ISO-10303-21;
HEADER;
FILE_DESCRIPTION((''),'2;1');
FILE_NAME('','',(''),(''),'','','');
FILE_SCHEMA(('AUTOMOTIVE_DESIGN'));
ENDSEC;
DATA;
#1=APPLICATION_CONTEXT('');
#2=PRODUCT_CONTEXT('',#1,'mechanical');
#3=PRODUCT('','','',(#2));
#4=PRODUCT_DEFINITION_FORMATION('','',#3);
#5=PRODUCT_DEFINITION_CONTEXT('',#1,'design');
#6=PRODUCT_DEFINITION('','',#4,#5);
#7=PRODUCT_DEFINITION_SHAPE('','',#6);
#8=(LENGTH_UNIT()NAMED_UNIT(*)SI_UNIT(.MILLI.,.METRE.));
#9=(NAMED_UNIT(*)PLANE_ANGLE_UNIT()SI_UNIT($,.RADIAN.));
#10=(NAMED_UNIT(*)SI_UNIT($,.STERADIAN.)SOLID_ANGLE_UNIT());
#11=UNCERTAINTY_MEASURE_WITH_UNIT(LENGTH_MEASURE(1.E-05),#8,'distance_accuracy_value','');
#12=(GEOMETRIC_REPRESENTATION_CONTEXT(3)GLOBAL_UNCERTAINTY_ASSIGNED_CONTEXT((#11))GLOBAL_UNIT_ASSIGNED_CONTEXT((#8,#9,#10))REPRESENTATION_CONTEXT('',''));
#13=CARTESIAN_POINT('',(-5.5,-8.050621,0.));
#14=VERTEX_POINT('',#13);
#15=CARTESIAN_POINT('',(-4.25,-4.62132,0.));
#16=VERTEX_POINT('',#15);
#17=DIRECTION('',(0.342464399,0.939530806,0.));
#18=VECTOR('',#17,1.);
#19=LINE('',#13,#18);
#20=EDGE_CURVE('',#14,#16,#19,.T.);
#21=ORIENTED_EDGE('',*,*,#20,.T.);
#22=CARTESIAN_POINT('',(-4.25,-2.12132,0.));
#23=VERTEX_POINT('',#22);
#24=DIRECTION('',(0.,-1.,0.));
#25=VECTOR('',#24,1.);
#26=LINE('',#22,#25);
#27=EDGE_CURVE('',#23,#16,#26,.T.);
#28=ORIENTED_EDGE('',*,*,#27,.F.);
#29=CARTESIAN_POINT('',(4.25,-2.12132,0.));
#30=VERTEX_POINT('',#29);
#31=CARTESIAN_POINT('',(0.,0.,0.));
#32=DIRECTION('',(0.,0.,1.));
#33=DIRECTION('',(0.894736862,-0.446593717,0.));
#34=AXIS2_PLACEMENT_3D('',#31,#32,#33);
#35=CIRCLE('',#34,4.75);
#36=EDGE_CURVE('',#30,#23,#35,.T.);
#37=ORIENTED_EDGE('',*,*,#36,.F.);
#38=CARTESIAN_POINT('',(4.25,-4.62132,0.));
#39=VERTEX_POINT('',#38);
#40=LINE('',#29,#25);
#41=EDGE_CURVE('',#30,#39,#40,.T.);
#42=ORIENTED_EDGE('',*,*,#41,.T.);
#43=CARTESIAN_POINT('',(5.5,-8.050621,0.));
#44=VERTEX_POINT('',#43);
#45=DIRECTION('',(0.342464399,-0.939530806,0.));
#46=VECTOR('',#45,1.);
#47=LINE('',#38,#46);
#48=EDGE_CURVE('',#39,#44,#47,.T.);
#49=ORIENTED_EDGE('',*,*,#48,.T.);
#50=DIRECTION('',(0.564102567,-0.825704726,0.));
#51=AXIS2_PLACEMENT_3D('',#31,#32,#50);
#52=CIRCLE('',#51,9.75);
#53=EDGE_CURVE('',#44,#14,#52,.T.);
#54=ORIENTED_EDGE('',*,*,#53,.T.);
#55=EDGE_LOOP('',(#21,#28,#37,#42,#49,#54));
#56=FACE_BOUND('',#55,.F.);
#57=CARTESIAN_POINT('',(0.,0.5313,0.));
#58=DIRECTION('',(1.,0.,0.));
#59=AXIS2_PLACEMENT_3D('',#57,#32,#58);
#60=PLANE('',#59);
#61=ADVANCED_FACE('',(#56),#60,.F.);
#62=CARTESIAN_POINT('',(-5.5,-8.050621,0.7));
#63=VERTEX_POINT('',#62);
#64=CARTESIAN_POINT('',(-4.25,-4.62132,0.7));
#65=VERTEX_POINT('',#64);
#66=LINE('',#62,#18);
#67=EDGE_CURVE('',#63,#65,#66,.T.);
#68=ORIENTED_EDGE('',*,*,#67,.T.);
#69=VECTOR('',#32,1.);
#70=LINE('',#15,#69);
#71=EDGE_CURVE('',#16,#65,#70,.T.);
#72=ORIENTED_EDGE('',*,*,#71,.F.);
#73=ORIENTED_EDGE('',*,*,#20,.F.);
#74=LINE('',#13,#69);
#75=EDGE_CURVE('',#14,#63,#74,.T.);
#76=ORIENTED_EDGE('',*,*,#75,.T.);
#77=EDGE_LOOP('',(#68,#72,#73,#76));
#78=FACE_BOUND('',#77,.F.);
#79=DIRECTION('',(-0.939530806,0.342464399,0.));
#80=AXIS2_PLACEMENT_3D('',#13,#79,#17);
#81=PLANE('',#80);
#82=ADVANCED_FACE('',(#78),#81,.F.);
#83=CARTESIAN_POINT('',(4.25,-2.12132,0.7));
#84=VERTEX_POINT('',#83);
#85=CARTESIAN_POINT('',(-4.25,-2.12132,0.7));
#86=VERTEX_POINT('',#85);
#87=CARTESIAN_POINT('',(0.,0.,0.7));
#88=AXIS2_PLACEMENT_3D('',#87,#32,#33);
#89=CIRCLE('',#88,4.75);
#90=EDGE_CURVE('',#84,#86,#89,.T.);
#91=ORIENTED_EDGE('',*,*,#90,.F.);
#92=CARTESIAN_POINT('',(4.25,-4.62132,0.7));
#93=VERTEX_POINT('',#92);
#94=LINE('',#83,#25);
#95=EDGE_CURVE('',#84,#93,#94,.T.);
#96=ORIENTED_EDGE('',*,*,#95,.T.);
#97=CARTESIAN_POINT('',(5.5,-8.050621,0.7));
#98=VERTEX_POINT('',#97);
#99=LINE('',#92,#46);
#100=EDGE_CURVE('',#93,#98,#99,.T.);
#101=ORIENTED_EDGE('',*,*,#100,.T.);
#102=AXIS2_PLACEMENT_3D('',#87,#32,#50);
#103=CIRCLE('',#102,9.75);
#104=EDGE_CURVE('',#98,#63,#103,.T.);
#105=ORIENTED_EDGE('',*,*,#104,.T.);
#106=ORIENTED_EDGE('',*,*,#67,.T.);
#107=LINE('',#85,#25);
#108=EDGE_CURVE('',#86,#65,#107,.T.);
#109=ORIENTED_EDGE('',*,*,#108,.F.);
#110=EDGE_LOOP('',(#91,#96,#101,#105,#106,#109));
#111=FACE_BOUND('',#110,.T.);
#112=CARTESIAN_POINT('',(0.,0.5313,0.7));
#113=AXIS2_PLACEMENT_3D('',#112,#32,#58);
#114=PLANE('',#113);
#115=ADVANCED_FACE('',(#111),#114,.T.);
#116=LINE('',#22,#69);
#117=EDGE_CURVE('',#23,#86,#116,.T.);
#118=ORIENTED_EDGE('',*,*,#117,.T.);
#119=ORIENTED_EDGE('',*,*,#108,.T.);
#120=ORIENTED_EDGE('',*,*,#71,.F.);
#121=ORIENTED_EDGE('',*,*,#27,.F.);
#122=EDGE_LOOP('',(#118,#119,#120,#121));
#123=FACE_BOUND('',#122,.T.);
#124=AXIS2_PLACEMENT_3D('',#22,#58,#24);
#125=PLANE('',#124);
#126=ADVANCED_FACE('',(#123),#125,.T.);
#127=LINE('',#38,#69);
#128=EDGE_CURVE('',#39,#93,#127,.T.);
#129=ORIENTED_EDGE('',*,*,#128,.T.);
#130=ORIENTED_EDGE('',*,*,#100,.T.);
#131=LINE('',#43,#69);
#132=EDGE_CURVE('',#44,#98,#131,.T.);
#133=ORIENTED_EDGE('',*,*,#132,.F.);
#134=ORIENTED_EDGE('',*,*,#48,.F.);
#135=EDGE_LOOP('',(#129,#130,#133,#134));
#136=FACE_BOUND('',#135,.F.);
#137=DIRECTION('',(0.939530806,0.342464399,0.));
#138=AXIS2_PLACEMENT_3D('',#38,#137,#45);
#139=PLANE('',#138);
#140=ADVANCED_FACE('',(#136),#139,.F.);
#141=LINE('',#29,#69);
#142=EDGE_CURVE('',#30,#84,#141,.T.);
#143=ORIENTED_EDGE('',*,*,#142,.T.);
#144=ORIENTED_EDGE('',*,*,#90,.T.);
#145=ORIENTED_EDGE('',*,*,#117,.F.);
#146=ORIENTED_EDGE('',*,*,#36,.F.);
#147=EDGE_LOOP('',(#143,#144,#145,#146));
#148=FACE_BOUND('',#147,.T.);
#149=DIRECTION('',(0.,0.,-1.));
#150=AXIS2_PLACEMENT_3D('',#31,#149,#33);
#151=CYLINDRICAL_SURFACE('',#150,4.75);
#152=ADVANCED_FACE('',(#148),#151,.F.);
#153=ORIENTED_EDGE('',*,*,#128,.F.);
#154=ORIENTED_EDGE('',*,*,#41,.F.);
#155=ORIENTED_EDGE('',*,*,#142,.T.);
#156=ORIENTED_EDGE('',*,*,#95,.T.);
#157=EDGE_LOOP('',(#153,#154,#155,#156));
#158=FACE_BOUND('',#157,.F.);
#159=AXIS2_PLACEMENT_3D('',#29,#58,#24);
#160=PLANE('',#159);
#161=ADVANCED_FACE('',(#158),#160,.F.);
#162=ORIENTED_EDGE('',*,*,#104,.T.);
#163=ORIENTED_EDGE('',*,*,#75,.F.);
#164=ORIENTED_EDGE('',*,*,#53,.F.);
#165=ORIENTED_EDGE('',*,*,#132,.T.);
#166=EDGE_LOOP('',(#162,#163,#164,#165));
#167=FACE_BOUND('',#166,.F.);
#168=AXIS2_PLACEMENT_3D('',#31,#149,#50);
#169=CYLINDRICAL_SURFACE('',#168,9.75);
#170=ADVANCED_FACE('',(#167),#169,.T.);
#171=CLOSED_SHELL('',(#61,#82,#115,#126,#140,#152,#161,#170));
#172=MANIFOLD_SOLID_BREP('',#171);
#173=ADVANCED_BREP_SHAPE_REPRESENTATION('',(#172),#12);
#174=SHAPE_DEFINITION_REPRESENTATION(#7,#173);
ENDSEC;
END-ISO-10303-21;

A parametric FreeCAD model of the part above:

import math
import FreeCAD as App
import Part
import Sketcher

V = App.Vector
Q = App.Units.Quantity

doc = App.newDocument("Part")
body = doc.addObject("PartDesign::Body", "Body")

sketch1 = doc.addObject("Sketcher::SketchObject", "Sketch")
body.addObject(sketch1)
sketch1.AttachmentSupport = (doc.XY_Plane, [""])
sketch1.MapMode = "FlatFace"
sketch1.addGeometry([
    Part.ArcOfCircle(Part.Circle(V(0, 0, 0), V(0, 0, 1), 9.7), math.radians(-56), math.radians(236)),
    Part.LineSegment(V(-5.5, -8.1, 0), V(-4.2, -4.6, 0)),
    Part.LineSegment(V(-4.2, -4.6, 0), V(-4.2, -2.1, 0)),
    Part.ArcOfCircle(Part.Circle(V(0, 0, 0), V(0, 0, 1), 4.7), math.radians(-27), math.radians(207)),
    Part.LineSegment(V(4.2, -2.1, 0), V(4.2, -4.6, 0)),
    Part.LineSegment(V(4.2, -4.6, 0), V(5.5, -8.1, 0)),
], False)
sketch1.addConstraint([
    Sketcher.Constraint("Coincident", 0, 2, 1, 1),
    Sketcher.Constraint("Coincident", 1, 2, 2, 1),
    Sketcher.Constraint("Coincident", 2, 2, 3, 2),
    Sketcher.Constraint("Coincident", 3, 1, 4, 1),
    Sketcher.Constraint("Coincident", 4, 2, 5, 1),
    Sketcher.Constraint("Coincident", 5, 2, 0, 1),
    Sketcher.Constraint("Vertical", 2),
    Sketcher.Constraint("Vertical", 4),
    Sketcher.Constraint("Coincident", 0, 3, -1, 1),
    Sketcher.Constraint("Coincident", 3, 3, -1, 1),
    Sketcher.Constraint("Symmetric", 1, 2, 4, 2, -2),
    Sketcher.Constraint("Horizontal", 0, 2, 5, 2),
    Sketcher.Constraint("Radius", 0, Q("9.75 mm")),
    Sketcher.Constraint("Radius", 3, Q("4.75 mm")),
    Sketcher.Constraint("DistanceY", 2, 1, 2, 2, Q("2.5 mm")),
    Sketcher.Constraint("DistanceX", 0, 2, -1, 1, Q("5.5 mm")),
    Sketcher.Constraint("DistanceX", 2, 2, 3, 1, Q("8.5 mm")),
])
pad1 = doc.addObject("PartDesign::Pad", "Pad")
body.addObject(pad1)
pad1.Profile = sketch1
pad1.Length = 0.7

doc.recompute()
